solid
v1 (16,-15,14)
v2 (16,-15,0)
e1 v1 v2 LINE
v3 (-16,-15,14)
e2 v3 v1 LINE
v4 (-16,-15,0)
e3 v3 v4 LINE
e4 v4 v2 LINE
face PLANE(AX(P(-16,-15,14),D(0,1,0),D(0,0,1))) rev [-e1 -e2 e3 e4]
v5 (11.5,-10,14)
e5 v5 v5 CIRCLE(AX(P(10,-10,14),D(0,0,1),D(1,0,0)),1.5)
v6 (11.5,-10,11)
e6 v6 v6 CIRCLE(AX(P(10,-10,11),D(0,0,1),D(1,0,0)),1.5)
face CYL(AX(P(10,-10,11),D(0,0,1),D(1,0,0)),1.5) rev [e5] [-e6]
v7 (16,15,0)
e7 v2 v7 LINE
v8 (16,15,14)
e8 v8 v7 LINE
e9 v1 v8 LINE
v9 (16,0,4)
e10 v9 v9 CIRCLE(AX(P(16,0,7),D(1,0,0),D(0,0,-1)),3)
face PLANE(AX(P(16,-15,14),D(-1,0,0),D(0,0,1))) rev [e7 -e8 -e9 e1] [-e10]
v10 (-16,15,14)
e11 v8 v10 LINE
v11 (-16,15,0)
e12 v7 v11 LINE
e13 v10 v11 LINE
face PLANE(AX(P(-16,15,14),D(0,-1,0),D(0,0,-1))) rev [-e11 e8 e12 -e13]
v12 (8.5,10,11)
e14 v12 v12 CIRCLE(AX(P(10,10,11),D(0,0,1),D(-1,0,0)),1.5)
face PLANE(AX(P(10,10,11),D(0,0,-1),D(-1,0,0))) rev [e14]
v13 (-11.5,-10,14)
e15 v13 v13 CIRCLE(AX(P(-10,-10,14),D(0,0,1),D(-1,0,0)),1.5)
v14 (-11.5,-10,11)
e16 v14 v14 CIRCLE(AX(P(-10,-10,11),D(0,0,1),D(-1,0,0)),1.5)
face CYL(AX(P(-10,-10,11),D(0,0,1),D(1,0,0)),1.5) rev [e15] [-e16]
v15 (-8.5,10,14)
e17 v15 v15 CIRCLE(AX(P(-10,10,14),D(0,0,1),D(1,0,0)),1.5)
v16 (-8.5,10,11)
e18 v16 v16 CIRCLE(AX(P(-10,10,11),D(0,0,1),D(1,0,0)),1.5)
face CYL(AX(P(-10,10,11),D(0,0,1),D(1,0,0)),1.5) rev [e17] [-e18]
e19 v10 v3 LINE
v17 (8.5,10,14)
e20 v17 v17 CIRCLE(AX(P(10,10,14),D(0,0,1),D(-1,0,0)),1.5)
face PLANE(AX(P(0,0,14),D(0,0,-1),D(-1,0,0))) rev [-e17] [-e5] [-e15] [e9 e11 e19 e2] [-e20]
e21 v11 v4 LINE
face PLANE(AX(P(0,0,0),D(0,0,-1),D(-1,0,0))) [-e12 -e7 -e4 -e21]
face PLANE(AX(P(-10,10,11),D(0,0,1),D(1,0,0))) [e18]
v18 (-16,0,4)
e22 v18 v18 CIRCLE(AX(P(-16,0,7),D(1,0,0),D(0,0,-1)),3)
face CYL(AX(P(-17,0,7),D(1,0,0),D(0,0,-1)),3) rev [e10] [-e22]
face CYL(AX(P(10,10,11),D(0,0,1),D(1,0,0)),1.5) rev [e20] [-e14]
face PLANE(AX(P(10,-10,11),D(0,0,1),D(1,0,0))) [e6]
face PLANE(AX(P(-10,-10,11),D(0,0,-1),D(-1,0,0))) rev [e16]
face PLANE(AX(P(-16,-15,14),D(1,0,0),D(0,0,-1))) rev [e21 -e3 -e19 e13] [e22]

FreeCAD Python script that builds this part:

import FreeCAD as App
import Part
import Sketcher

doc = App.newDocument("Part")
body = doc.addObject("PartDesign::Body", "Body")

# Sketch on XY plane
sketch1 = body.newObject("Sketcher::SketchObject", "Sketch")
sketch1.AttachmentSupport = (doc.getObject("XY_Plane"), [""])
sketch1.MapMode = "FlatFace"
sketch1.addGeometry(Part.LineSegment(App.Vector(-16, 15, 0), App.Vector(-16, -15, 0)), False)
sketch1.addGeometry(Part.LineSegment(App.Vector(-16, -15, 0), App.Vector(16, -15, 0)), False)
sketch1.addGeometry(Part.LineSegment(App.Vector(16, -15, 0), App.Vector(16, 15, 0)), False)
sketch1.addGeometry(Part.LineSegment(App.Vector(16, 15, 0), App.Vector(-16, 15, 0)), False)
sketch1.addConstraint(Sketcher.Constraint("Coincident", 0, 2, 1, 1))
sketch1.addConstraint(Sketcher.Constraint("Coincident", 1, 2, 2, 1))
sketch1.addConstraint(Sketcher.Constraint("Coincident", 2, 2, 3, 1))
sketch1.addConstraint(Sketcher.Constraint("Coincident", 3, 2, 0, 1))
sketch1.addConstraint(Sketcher.Constraint("Vertical", 0))
sketch1.addConstraint(Sketcher.Constraint("Horizontal", 1))
sketch1.addConstraint(Sketcher.Constraint("Vertical", 2))
sketch1.addConstraint(Sketcher.Constraint("Horizontal", 3))
sketch1.addConstraint(Sketcher.Constraint("Symmetric", 0, 2, 2, 2, -1, 1))
sketch1.addConstraint(Sketcher.Constraint("DistanceX", 1, 1, 1, 2, 32.0))
sketch1.addConstraint(Sketcher.Constraint("DistanceY", 0, 2, 0, 1, 30.0))
pad1 = body.newObject("PartDesign::Pad", "Pad")
pad1.Profile = sketch1
pad1.Length = 14

# Sketch on YZ plane
sketch2 = body.newObject("Sketcher::SketchObject", "Sketch001")
sketch2.AttachmentSupport = (doc.getObject("YZ_Plane"), [""])
sketch2.MapMode = "FlatFace"
sketch2.AttachmentOffset = App.Placement(App.Vector(0, 0, 16), App.Rotation())
sketch2.addGeometry(Part.Circle(App.Vector(0, 7, 0), App.Vector(0, 0, 1), 3), False)
sketch2.addConstraint(Sketcher.Constraint("PointOnObject", 0, 3, -2))
sketch2.addConstraint(Sketcher.Constraint("Diameter", 0, 6.0))
sketch2.addConstraint(Sketcher.Constraint("DistanceY", -1, 1, 0, 3, 7.0))
pocket1 = body.newObject("PartDesign::Pocket", "Pocket")
pocket1.Profile = sketch2
pocket1.Length = 33

# Sketch on XY plane
sketch3 = body.newObject("Sketcher::SketchObject", "Sketch002")
sketch3.AttachmentSupport = (doc.getObject("XY_Plane"), [""])
sketch3.MapMode = "FlatFace"
sketch3.AttachmentOffset = App.Placement(App.Vector(0, 0, 14), App.Rotation())
sketch3.addGeometry(Part.Circle(App.Vector(-10, 10, 0), App.Vector(0, 0, 1), 1.5), False)
sketch3.addGeometry(Part.Circle(App.Vector(10, 10, 0), App.Vector(0, 0, 1), 1.5), False)
sketch3.addGeometry(Part.Circle(App.Vector(10, -10, 0), App.Vector(0, 0, 1), 1.5), False)
sketch3.addGeometry(Part.Circle(App.Vector(-10, -10, 0), App.Vector(0, 0, 1), 1.5), False)
sketch3.addConstraint(Sketcher.Constraint("Equal", 0, 1))
sketch3.addConstraint(Sketcher.Constraint("Equal", 1, 2))
sketch3.addConstraint(Sketcher.Constraint("Equal", 2, 3))
sketch3.addConstraint(Sketcher.Constraint("Symmetric", 0, 3, 2, 3, -1, 1))
sketch3.addConstraint(Sketcher.Constraint("Symmetric", 1, 3, 3, 3, -1, 1))
sketch3.addConstraint(Sketcher.Constraint("Symmetric", 0, 3, 1, 3, -2))
sketch3.addConstraint(Sketcher.Constraint("Diameter", 0, 3.0))
sketch3.addConstraint(Sketcher.Constraint("DistanceX", 0, 3, -1, 1, 10.0))
sketch3.addConstraint(Sketcher.Constraint("DistanceY", -1, 1, 0, 3, 10.0))
pocket2 = body.newObject("PartDesign::Pocket", "Pocket001")
pocket2.Profile = sketch3
pocket2.Length = 3

doc.recompute()
